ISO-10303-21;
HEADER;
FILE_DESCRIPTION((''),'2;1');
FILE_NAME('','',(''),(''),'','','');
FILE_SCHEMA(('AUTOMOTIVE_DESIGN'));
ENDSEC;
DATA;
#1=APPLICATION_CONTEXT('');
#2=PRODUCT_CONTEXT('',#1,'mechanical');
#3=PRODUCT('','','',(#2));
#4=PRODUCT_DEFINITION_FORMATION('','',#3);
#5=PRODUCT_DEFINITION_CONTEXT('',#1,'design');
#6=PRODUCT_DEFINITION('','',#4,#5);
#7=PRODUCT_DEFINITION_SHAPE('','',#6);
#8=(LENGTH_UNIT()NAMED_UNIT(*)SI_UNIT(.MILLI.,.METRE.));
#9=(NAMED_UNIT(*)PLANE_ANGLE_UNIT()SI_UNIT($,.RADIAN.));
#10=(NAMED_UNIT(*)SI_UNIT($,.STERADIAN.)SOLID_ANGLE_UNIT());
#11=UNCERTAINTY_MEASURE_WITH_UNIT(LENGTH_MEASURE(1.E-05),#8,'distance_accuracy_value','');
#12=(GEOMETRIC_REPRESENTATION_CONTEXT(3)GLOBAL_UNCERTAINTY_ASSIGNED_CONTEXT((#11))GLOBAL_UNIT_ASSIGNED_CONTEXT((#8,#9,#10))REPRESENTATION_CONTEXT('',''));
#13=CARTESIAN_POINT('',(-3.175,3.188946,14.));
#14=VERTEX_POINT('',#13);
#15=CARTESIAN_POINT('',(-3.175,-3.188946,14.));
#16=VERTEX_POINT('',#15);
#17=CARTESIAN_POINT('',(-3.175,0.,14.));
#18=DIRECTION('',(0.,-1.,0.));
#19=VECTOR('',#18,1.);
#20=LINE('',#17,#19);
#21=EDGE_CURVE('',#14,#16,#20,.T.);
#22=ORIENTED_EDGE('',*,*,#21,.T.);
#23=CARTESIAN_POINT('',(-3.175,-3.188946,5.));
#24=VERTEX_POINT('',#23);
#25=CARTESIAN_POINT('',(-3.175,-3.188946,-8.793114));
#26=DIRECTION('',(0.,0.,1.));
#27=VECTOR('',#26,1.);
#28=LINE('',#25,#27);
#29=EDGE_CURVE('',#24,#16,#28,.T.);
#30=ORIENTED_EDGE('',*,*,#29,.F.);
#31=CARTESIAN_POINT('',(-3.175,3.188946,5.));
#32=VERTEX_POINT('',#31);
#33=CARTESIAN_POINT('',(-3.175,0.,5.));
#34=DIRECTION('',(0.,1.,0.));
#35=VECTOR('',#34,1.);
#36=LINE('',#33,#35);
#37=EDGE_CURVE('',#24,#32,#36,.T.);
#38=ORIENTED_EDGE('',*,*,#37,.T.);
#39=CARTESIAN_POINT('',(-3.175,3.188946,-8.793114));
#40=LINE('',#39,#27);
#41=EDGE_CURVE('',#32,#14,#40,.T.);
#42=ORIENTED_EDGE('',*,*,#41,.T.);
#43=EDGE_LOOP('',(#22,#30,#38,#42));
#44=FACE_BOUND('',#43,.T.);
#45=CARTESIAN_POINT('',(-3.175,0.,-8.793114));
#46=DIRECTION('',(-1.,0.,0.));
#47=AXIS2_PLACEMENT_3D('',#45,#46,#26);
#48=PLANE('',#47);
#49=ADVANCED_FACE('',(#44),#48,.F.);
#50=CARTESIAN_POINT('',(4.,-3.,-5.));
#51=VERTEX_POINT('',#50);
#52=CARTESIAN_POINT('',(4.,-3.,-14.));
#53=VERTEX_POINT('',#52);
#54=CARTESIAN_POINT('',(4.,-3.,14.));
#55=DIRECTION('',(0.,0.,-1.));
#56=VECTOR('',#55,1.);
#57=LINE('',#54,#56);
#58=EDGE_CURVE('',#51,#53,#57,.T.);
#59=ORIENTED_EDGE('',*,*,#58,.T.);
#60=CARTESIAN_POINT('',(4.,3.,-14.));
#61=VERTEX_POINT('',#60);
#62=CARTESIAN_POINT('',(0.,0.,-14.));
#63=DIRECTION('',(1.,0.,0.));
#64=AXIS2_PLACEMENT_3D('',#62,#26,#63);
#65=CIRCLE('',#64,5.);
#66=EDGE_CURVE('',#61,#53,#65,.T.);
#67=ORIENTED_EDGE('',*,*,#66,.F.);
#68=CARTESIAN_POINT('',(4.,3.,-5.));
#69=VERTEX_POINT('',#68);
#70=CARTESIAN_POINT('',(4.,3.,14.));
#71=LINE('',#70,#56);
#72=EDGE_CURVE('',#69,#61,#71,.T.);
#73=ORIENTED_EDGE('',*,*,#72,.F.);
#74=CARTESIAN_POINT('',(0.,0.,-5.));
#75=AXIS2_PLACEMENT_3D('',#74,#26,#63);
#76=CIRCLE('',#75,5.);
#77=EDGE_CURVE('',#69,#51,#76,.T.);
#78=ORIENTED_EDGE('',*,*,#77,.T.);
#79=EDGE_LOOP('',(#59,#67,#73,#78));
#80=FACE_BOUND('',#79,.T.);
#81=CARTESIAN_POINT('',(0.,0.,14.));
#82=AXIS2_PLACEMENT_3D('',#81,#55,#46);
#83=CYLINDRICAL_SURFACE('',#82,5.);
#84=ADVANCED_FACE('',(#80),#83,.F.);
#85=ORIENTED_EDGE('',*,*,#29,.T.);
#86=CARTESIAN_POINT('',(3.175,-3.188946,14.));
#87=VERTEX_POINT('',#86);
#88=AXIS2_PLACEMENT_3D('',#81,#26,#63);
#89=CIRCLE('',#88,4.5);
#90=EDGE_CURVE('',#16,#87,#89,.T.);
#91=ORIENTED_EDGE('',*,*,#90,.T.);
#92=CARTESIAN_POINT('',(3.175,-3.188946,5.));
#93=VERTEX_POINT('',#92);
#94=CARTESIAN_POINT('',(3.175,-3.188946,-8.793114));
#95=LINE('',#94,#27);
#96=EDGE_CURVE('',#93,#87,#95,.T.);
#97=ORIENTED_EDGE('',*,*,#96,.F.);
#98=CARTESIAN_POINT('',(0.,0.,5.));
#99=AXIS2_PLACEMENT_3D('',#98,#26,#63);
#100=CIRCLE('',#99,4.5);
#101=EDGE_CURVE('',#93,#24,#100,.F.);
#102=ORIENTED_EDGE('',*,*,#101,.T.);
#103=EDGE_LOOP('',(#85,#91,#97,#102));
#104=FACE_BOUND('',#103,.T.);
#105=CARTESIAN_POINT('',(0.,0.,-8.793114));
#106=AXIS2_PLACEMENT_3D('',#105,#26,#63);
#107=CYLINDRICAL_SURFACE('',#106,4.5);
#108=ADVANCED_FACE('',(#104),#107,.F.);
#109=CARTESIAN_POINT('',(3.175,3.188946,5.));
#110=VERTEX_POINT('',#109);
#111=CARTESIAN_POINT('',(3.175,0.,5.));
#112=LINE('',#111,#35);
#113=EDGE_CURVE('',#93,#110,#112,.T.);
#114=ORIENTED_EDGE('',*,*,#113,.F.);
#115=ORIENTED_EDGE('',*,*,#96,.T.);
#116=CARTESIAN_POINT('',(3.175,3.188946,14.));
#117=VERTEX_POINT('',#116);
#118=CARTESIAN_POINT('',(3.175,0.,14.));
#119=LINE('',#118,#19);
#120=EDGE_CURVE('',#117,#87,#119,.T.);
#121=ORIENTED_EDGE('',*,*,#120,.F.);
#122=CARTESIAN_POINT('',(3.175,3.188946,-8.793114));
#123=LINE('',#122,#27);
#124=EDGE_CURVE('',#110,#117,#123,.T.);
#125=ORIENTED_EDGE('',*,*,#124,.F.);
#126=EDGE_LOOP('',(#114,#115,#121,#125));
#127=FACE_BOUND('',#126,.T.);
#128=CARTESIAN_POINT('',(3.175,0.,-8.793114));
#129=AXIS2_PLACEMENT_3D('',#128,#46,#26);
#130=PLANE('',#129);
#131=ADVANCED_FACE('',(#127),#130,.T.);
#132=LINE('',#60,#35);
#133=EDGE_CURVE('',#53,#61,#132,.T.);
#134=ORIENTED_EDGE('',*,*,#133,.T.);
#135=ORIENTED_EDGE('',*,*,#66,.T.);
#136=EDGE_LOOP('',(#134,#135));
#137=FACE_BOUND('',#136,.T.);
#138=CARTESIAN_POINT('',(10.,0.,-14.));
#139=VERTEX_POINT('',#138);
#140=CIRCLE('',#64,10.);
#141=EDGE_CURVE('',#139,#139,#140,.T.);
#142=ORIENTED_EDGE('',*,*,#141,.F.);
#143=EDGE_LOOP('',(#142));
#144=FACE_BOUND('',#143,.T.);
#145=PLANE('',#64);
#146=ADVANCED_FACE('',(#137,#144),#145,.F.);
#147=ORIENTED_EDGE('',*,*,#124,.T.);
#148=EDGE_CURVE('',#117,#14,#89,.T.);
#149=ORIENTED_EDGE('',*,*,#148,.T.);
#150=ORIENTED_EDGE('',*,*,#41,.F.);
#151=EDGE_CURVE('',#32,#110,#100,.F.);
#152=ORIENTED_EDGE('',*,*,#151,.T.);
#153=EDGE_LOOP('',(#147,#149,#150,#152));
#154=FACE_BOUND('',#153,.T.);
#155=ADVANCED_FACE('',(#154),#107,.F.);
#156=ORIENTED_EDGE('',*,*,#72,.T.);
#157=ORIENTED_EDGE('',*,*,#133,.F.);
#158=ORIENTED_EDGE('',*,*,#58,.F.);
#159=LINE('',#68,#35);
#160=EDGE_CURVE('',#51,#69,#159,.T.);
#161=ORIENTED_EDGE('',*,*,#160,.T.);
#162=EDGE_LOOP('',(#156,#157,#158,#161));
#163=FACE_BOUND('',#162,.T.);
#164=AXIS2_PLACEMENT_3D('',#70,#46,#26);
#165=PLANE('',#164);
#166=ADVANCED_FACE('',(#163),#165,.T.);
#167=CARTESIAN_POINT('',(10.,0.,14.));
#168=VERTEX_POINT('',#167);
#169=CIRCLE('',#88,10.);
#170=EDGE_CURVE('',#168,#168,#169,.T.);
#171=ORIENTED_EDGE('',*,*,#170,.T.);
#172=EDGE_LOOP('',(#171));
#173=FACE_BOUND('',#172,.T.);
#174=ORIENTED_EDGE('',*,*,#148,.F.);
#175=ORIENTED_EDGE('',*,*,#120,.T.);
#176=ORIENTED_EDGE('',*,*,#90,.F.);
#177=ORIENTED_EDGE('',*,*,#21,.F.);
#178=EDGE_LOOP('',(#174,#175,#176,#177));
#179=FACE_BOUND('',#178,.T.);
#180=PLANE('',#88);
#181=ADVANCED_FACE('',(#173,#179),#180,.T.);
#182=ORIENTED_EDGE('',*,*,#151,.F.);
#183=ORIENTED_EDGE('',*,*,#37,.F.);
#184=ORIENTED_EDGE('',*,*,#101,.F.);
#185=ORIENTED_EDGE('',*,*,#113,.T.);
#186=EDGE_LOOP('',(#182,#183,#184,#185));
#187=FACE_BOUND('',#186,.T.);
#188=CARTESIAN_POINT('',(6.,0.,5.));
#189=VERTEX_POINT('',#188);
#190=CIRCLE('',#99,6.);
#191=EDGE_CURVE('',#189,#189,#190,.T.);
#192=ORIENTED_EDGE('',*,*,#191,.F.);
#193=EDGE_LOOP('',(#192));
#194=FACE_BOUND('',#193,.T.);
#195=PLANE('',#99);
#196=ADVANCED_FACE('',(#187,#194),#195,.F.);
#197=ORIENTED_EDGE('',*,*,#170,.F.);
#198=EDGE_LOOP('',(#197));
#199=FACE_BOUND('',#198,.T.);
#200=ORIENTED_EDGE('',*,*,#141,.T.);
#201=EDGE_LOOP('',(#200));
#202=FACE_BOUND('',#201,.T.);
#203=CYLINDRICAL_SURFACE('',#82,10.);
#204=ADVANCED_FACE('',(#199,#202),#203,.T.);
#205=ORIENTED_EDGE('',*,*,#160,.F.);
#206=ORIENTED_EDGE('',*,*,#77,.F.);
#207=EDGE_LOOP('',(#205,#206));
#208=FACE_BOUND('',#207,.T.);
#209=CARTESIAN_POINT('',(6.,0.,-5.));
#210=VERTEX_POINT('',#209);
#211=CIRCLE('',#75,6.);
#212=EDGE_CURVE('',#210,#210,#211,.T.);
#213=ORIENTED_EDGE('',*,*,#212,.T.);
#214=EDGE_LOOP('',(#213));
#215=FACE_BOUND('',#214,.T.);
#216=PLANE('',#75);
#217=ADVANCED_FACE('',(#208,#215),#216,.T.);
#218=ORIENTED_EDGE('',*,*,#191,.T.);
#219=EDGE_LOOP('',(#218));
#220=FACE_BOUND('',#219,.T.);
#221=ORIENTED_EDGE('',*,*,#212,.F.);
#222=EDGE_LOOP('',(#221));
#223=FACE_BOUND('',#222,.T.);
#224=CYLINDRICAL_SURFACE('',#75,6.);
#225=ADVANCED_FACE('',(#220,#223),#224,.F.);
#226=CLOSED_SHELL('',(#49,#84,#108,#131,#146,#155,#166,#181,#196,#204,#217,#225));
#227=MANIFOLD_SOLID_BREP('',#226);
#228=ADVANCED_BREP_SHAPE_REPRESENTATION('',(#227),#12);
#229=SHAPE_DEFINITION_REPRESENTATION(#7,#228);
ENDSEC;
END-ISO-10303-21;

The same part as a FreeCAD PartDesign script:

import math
import FreeCAD as App
import Part
import Sketcher

V = App.Vector

doc = App.newDocument("Part")
params = doc.addObject("Spreadsheet::Sheet", "Params")
for row, (alias, value) in enumerate([
    ("sketch1_diameter", "20 mm"),
    ("sketch1_radius", "5 mm"),
    ("sketch1_height", "6 mm"),
    ("pad1_length", "28 mm"),
    ("sketch2_diameter", "12 mm"),
    ("pocket1_length", "10 mm"),
    ("sketch3_radius", "5 mm"),
    ("sketch3_radius2", "4.5 mm"),
    ("pad2_length", "9 mm"),
], start=1):
    params.set(f"A{row}", alias)
    params.set(f"B{row}", "=" + value)
    params.setAlias(f"B{row}", alias)

body = doc.addObject("PartDesign::Body", "Body")

# Sketch on XY plane
sketch1 = doc.addObject("Sketcher::SketchObject", "Sketch")
body.addObject(sketch1)
sketch1.AttachmentSupport = (doc.XY_Plane, [""])
sketch1.MapMode = "FlatFace"
sketch1.addGeometry([
    Part.Circle(V(0, 0, 0), V(0, 0, 1), 10),
    Part.ArcOfCircle(Part.Circle(V(0, 0, 0), V(0, 0, 1), 5), math.radians(37), math.radians(323)),
    Part.LineSegment(V(4, 3, 0), V(4, -3, 0)),
], False)
sketch1.addConstraint([
    Sketcher.Constraint("Coincident", 1, 1, 2, 1),
    Sketcher.Constraint("Coincident", 2, 2, 1, 2),
    Sketcher.Constraint("Vertical", 2),
    Sketcher.Constraint("Coincident", 0, 3, -1, 1),
    Sketcher.Constraint("Coincident", 1, 3, -1, 1),
    Sketcher.Constraint("Diameter", 0, 20.0),
    Sketcher.Constraint("Radius", 1, 5.0),
    Sketcher.Constraint("DistanceY", 2, 2, 2, 1, 6.0),
])
sketch1.setExpression("Constraints[5]", "Params.sketch1_diameter")
sketch1.setExpression("Constraints[6]", "Params.sketch1_radius")
sketch1.setExpression("Constraints[7]", "Params.sketch1_height")
pad1 = doc.addObject("PartDesign::Pad", "Pad")
body.addObject(pad1)
pad1.Profile = sketch1
pad1.setExpression("Length", "Params.pad1_length")
pad1.Midplane = True

# Sketch on XY plane
sketch2 = doc.addObject("Sketcher::SketchObject", "Sketch001")
body.addObject(sketch2)
sketch2.AttachmentSupport = (doc.XY_Plane, [""])
sketch2.MapMode = "FlatFace"
sketch2.addGeometry(Part.Circle(V(0, 0, 0), V(0, 0, 1), 6), False)
sketch2.addConstraint([
    Sketcher.Constraint("Coincident", 0, 3, -1, 1),
    Sketcher.Constraint("Diameter", 0, 12.0),
])
sketch2.setExpression("Constraints[1]", "Params.sketch2_diameter")
pocket1 = doc.addObject("PartDesign::Pocket", "Pocket")
body.addObject(pocket1)
pocket1.Profile = sketch2
pocket1.setExpression("Length", "Params.pocket1_length")
pocket1.Midplane = True

# Sketch on XY plane
sketch3 = doc.addObject("Sketcher::SketchObject", "Sketch002")
body.addObject(sketch3)
sketch3.AttachmentSupport = (doc.XY_Plane, [""])
sketch3.MapMode = "FlatFace"
sketch3.AttachmentOffset = App.Placement(V(0, 0, 14), App.Rotation())
sketch3.addGeometry([
    Part.ArcOfCircle(Part.Circle(V(0, 0, 0), V(0, 0, 1), 5), math.radians(37), math.radians(323)),  # 0
    Part.LineSegment(V(4, -3, 0), V(4, -2.1, 0)),  # 1
    Part.ArcOfCircle(Part.Circle(V(0, 0, 0), V(0, 0, 1), 4.5), math.radians(-27), math.radians(0)),  # 2
    Part.ArcOfCircle(Part.Circle(V(0, 0, 0), V(0, 0, 1), 4.5), math.radians(0), math.radians(27)),  # 3
    Part.LineSegment(V(4, 2.1, 0), V(4, 3, 0)),  # 4
    Part.ArcOfCircle(Part.Circle(V(0, 0, 0), V(0, 0, 1), 4.5), math.radians(45), math.radians(135)),  # 5
    Part.LineSegment(V(3.2, 3.2, 0), V(3.2, -3.2, 0)),  # 6
    Part.ArcOfCircle(Part.Circle(V(0, 0, 0), V(0, 0, 1), 4.5), math.radians(-135), math.radians(-45)),  # 7
    Part.LineSegment(V(-3.2, -3.2, 0), V(-3.2, 3.2, 0)),  # 8
], False)
sketch3.addConstraint([
    Sketcher.Constraint("Coincident", 0, 2, 1, 1),
    Sketcher.Constraint("Coincident", 1, 2, 2, 1),
    Sketcher.Constraint("Tangent", 2, 2, 3, 1),
    Sketcher.Constraint("Coincident", 3, 2, 4, 1),
    Sketcher.Constraint("Coincident", 4, 2, 0, 1),
    Sketcher.Constraint("Coincident", 5, 1, 6, 1),
    Sketcher.Constraint("Coincident", 6, 2, 7, 2),
    Sketcher.Constraint("Coincident", 7, 1, 8, 1),
    Sketcher.Constraint("Coincident", 8, 2, 5, 2),
    Sketcher.Constraint("Vertical", 1),
    Sketcher.Constraint("Vertical", 4),
    Sketcher.Constraint("Vertical", 6),
    Sketcher.Constraint("Vertical", 8),
    Sketcher.Constraint("Coincident", 0, 3, -1, 1),
    Sketcher.Constraint("Coincident", 2, 3, -1, 1),
    Sketcher.Constraint("Coincident", 5, 3, -1, 1),
    Sketcher.Constraint("Coincident", 7, 3, -1, 1),
    Sketcher.Constraint("Equal", 2, 3),
    Sketcher.Constraint("Equal", 3, 5),
    Sketcher.Constraint("Equal", 5, 7),
    Sketcher.Constraint("PointOnObject", 2, 2, -1),
    Sketcher.Constraint("Horizontal", 6, 2, 7, 1),
    Sketcher.Constraint("Vertical", 1, 2, 3, 2),
    Sketcher.Constraint("Radius", 0, 5.0),
    Sketcher.Constraint("Radius", 2, 4.5),
    Sketcher.Constraint("DistanceX", -1, 1, 0, 2, 4.0),
    Sketcher.Constraint("DistanceX", -1, 1, 5, 1, 3.175),
])
sketch3.setExpression("Constraints[23]", "Params.sketch3_radius")
sketch3.setExpression("Constraints[24]", "Params.sketch3_radius2")
pad2 = doc.addObject("PartDesign::Pad", "Pad001")
body.addObject(pad2)
pad2.Profile = sketch3
pad2.setExpression("Length", "Params.pad2_length")
pad2.Reversed = True

doc.recompute()
